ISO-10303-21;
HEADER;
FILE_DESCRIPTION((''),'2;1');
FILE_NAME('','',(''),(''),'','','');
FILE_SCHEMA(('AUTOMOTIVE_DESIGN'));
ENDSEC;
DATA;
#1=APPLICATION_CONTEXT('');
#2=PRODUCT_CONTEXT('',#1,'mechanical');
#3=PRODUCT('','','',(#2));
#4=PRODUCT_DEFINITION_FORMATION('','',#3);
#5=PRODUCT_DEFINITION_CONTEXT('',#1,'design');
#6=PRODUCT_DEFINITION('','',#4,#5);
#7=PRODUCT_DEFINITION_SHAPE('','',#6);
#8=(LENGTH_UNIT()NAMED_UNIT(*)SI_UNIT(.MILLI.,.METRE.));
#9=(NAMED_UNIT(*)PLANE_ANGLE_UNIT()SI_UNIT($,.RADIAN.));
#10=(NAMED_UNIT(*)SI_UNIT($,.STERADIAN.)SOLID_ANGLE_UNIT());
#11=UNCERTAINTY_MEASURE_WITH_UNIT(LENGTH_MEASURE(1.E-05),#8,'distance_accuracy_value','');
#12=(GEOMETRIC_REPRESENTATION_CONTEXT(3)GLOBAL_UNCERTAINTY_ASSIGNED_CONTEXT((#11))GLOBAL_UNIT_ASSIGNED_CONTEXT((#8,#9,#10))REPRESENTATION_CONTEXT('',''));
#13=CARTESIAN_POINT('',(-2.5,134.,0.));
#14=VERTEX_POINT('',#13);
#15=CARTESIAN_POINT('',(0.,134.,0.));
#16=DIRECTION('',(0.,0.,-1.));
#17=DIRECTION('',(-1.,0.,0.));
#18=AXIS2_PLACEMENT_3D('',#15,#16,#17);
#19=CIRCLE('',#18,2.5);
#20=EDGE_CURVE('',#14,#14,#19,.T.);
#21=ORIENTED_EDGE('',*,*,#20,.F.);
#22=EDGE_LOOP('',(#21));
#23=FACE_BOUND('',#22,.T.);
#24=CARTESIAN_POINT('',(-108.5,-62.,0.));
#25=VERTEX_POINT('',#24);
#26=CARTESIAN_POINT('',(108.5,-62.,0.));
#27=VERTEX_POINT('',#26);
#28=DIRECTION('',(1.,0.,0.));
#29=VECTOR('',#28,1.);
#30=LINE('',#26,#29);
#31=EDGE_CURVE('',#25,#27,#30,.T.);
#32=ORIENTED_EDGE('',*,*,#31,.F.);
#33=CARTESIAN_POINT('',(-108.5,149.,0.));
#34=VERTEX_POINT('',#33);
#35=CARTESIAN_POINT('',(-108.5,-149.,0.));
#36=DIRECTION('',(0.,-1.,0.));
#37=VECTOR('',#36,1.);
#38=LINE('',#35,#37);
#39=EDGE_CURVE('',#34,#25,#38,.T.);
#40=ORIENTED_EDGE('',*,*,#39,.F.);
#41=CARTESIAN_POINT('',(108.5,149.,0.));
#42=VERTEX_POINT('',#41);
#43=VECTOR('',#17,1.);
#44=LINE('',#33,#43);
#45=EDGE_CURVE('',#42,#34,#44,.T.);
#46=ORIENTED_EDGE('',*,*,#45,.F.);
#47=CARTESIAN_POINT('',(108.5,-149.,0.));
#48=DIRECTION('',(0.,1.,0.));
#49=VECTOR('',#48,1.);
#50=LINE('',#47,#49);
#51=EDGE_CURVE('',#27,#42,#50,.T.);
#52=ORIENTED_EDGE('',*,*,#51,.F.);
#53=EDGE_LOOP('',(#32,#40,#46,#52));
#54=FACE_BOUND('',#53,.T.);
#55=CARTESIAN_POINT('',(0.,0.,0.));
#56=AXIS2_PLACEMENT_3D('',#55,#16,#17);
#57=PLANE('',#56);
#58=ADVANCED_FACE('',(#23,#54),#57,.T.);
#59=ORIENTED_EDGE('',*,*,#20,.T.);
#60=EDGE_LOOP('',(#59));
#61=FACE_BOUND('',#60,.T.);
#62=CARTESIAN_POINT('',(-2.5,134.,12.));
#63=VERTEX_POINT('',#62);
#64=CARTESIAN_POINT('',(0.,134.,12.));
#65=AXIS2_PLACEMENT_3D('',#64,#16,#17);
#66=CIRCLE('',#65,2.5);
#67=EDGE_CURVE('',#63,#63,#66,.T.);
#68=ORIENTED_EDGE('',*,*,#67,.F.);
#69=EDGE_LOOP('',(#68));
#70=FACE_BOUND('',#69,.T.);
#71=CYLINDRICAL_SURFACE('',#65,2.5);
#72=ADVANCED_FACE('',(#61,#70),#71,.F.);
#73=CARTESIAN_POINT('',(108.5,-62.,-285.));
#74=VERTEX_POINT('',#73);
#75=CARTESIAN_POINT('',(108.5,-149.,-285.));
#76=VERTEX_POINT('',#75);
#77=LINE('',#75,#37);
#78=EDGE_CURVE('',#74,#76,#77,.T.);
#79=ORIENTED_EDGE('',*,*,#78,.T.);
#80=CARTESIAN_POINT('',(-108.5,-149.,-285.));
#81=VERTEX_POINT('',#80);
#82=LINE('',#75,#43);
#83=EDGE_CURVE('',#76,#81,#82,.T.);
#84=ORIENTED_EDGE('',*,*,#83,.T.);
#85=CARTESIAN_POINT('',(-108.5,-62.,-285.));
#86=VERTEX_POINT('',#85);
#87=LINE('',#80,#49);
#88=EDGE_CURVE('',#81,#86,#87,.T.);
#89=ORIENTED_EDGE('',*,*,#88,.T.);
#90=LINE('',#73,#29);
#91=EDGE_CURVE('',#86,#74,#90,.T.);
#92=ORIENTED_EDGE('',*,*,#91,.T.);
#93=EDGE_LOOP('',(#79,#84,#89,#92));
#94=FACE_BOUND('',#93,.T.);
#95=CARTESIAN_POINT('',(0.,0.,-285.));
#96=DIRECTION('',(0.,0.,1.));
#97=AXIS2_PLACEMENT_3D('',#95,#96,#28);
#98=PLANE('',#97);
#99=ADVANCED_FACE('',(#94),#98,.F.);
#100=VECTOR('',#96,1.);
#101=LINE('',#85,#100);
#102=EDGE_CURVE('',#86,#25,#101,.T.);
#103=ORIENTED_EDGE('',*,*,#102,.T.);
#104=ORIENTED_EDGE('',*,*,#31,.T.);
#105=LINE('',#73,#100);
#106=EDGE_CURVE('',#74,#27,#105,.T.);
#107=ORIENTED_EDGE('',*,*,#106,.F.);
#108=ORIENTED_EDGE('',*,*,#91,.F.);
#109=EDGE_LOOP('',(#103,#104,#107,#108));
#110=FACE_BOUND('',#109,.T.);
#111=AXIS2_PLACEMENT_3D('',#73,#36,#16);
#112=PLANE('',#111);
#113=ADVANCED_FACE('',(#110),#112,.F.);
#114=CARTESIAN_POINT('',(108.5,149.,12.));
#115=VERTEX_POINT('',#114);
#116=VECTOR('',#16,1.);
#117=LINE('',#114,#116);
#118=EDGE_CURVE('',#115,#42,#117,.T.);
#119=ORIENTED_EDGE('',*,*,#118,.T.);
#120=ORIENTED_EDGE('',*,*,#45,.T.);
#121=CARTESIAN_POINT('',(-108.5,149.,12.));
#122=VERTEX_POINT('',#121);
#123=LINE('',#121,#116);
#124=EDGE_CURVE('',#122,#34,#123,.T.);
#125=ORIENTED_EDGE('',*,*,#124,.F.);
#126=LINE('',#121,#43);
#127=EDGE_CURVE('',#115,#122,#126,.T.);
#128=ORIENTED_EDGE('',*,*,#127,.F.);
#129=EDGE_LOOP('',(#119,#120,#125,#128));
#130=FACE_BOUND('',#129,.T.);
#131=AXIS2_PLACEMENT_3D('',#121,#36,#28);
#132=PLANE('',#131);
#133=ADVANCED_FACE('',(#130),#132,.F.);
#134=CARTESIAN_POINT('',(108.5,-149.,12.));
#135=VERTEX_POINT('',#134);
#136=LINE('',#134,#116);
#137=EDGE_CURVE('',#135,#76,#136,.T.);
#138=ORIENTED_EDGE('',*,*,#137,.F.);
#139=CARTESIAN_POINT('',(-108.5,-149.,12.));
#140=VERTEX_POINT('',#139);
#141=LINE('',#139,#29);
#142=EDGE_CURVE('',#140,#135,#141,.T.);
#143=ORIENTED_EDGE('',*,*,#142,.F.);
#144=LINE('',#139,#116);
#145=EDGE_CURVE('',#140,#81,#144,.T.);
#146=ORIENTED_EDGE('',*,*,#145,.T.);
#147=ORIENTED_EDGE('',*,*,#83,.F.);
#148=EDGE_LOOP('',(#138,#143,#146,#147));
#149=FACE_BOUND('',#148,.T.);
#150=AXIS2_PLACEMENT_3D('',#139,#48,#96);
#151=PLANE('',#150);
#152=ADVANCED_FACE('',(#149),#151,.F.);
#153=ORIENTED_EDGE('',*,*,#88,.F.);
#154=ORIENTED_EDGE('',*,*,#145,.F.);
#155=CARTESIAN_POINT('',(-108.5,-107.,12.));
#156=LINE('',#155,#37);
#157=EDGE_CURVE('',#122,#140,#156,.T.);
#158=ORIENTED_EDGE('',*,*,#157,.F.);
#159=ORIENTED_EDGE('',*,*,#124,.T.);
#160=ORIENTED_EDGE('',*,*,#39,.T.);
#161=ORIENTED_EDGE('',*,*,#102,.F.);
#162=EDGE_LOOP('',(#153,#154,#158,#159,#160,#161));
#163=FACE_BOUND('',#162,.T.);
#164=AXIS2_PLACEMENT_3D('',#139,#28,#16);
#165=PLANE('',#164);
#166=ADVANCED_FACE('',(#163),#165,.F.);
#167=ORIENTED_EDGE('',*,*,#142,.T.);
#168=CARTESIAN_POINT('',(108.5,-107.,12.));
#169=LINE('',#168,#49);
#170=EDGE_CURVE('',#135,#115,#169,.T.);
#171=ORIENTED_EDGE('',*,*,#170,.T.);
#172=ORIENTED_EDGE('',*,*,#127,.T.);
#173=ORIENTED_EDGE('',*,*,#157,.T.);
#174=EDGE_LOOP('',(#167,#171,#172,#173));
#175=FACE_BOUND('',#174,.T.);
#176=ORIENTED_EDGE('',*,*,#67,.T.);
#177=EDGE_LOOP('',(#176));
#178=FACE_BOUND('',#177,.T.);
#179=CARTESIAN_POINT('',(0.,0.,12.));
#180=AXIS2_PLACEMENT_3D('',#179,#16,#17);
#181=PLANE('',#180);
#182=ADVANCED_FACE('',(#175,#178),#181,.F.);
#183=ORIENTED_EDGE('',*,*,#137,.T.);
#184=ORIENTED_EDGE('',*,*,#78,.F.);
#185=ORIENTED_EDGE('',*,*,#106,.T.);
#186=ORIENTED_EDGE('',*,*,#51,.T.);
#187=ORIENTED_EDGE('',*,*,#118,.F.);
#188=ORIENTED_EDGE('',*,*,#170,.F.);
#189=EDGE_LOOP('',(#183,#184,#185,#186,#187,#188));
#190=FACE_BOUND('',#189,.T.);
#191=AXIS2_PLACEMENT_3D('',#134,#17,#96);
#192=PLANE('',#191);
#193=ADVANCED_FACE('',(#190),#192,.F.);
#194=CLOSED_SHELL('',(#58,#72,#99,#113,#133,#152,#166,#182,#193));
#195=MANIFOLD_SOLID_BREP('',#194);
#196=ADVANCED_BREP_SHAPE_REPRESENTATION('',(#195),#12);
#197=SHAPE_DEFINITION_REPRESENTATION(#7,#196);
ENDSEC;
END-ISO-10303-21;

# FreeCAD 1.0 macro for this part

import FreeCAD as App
import Part
import Sketcher
from FreeCAD import Vector
Q = App.Units.Quantity

doc = App.newDocument("Part")
params = doc.addObject("Spreadsheet::Sheet", "Params")
for row, (alias, value) in enumerate([
    ("sketch1_width", "217 mm"),
    ("sketch1_height", "298 mm"),
    ("pad1_length", "12 mm"),
    ("sketch2_diameter", "5 mm"),
    ("sketch3_width", "217 mm"),
    ("sketch3_height", "87 mm"),
    ("pad2_length", "285 mm"),
], start=1):
    params.set(f"A{row}", alias)
    params.set(f"B{row}", "=" + value)
    params.setAlias(f"B{row}", alias)

body = doc.addObject("PartDesign::Body", "Body")

# Sketch on XY plane
sketch1 = doc.addObject("Sketcher::SketchObject", "Sketch")
body.addObject(sketch1)
sketch1.AttachmentSupport = (doc.XY_Plane, [""])
sketch1.MapMode = "FlatFace"
sketch1.addGeometry([
    Part.LineSegment(Vector(108, 149, 0), Vector(-108, 149, 0)),
    Part.LineSegment(Vector(-108, 149, 0), Vector(-108, -149, 0)),
    Part.LineSegment(Vector(-108, -149, 0), Vector(108, -149, 0)),
    Part.LineSegment(Vector(108, -149, 0), Vector(108, 149, 0)),
], False)
sketch1.addConstraint([
    Sketcher.Constraint("Coincident", 0, 2, 1, 1),
    Sketcher.Constraint("Coincident", 1, 2, 2, 1),
    Sketcher.Constraint("Coincident", 2, 2, 3, 1),
    Sketcher.Constraint("Coincident", 3, 2, 0, 1),
    Sketcher.Constraint("Horizontal", 0),
    Sketcher.Constraint("Vertical", 1),
    Sketcher.Constraint("Horizontal", 2),
    Sketcher.Constraint("Vertical", 3),
    Sketcher.Constraint("Symmetric", 0, 2, 2, 2, -1, 1),
    Sketcher.Constraint("DistanceX", 0, 2, 0, 1, Q("217 mm")),
    Sketcher.Constraint("DistanceY", 1, 2, 1, 1, Q("298 mm")),
])
sketch1.setExpression("Constraints[9]", "Params.sketch1_width")
sketch1.setExpression("Constraints[10]", "Params.sketch1_height")
pad1 = doc.addObject("PartDesign::Pad", "Pad")
body.addObject(pad1)
pad1.Profile = sketch1
pad1.setExpression("Length", "Params.pad1_length")

# Sketch on XY plane
sketch2 = doc.addObject("Sketcher::SketchObject", "Sketch001")
body.addObject(sketch2)
sketch2.AttachmentSupport = (doc.XY_Plane, [""])
sketch2.MapMode = "FlatFace"
sketch2.addGeometry(Part.Circle(Vector(0, 134, 0), Vector(0, 0, 1), 2.5), False)
sketch2.addConstraint([
    Sketcher.Constraint("PointOnObject", 0, 3, -2),
    Sketcher.Constraint("Diameter", 0, Q("5 mm")),
    Sketcher.Constraint("DistanceY", -1, 1, 0, 3, Q("134 mm")),
])
sketch2.setExpression("Constraints[1]", "Params.sketch2_diameter")
pocket1 = doc.addObject("PartDesign::Pocket", "Pocket")
body.addObject(pocket1)
pocket1.Profile = sketch2
pocket1.Type = "ThroughAll"
pocket1.Reversed = True

# Sketch on XY plane
sketch3 = doc.addObject("Sketcher::SketchObject", "Sketch002")
body.addObject(sketch3)
sketch3.AttachmentSupport = (doc.XY_Plane, [""])
sketch3.MapMode = "FlatFace"
sketch3.addGeometry([
    Part.LineSegment(Vector(108, -62, 0), Vector(108, -149, 0)),
    Part.LineSegment(Vector(108, -149, 0), Vector(-108, -149, 0)),
    Part.LineSegment(Vector(-108, -149, 0), Vector(-108, -62, 0)),
    Part.LineSegment(Vector(-108, -62, 0), Vector(108, -62, 0)),
], False)
sketch3.addConstraint([
    Sketcher.Constraint("Coincident", 0, 2, 1, 1),
    Sketcher.Constraint("Coincident", 1, 2, 2, 1),
    Sketcher.Constraint("Coincident", 2, 2, 3, 1),
    Sketcher.Constraint("Coincident", 3, 2, 0, 1),
    Sketcher.Constraint("Vertical", 0),
    Sketcher.Constraint("Horizontal", 1),
    Sketcher.Constraint("Vertical", 2),
    Sketcher.Constraint("Horizontal", 3),
    Sketcher.Constraint("DistanceX", 1, 2, 1, 1, Q("217 mm")),
    Sketcher.Constraint("DistanceY", 0, 2, 0, 1, Q("87 mm")),
    Sketcher.Constraint("DistanceY", 0, 2, -1, 1, Q("149 mm")),
    Sketcher.Constraint("DistanceX", -1, 1, 0, 2, Q("108.5 mm")),
])
sketch3.setExpression("Constraints[8]", "Params.sketch3_width")
sketch3.setExpression("Constraints[9]", "Params.sketch3_height")
pad2 = doc.addObject("PartDesign::Pad", "Pad001")
body.addObject(pad2)
pad2.Profile = sketch3
pad2.setExpression("Length", "Params.pad2_length")
pad2.Reversed = True

doc.recompute()
